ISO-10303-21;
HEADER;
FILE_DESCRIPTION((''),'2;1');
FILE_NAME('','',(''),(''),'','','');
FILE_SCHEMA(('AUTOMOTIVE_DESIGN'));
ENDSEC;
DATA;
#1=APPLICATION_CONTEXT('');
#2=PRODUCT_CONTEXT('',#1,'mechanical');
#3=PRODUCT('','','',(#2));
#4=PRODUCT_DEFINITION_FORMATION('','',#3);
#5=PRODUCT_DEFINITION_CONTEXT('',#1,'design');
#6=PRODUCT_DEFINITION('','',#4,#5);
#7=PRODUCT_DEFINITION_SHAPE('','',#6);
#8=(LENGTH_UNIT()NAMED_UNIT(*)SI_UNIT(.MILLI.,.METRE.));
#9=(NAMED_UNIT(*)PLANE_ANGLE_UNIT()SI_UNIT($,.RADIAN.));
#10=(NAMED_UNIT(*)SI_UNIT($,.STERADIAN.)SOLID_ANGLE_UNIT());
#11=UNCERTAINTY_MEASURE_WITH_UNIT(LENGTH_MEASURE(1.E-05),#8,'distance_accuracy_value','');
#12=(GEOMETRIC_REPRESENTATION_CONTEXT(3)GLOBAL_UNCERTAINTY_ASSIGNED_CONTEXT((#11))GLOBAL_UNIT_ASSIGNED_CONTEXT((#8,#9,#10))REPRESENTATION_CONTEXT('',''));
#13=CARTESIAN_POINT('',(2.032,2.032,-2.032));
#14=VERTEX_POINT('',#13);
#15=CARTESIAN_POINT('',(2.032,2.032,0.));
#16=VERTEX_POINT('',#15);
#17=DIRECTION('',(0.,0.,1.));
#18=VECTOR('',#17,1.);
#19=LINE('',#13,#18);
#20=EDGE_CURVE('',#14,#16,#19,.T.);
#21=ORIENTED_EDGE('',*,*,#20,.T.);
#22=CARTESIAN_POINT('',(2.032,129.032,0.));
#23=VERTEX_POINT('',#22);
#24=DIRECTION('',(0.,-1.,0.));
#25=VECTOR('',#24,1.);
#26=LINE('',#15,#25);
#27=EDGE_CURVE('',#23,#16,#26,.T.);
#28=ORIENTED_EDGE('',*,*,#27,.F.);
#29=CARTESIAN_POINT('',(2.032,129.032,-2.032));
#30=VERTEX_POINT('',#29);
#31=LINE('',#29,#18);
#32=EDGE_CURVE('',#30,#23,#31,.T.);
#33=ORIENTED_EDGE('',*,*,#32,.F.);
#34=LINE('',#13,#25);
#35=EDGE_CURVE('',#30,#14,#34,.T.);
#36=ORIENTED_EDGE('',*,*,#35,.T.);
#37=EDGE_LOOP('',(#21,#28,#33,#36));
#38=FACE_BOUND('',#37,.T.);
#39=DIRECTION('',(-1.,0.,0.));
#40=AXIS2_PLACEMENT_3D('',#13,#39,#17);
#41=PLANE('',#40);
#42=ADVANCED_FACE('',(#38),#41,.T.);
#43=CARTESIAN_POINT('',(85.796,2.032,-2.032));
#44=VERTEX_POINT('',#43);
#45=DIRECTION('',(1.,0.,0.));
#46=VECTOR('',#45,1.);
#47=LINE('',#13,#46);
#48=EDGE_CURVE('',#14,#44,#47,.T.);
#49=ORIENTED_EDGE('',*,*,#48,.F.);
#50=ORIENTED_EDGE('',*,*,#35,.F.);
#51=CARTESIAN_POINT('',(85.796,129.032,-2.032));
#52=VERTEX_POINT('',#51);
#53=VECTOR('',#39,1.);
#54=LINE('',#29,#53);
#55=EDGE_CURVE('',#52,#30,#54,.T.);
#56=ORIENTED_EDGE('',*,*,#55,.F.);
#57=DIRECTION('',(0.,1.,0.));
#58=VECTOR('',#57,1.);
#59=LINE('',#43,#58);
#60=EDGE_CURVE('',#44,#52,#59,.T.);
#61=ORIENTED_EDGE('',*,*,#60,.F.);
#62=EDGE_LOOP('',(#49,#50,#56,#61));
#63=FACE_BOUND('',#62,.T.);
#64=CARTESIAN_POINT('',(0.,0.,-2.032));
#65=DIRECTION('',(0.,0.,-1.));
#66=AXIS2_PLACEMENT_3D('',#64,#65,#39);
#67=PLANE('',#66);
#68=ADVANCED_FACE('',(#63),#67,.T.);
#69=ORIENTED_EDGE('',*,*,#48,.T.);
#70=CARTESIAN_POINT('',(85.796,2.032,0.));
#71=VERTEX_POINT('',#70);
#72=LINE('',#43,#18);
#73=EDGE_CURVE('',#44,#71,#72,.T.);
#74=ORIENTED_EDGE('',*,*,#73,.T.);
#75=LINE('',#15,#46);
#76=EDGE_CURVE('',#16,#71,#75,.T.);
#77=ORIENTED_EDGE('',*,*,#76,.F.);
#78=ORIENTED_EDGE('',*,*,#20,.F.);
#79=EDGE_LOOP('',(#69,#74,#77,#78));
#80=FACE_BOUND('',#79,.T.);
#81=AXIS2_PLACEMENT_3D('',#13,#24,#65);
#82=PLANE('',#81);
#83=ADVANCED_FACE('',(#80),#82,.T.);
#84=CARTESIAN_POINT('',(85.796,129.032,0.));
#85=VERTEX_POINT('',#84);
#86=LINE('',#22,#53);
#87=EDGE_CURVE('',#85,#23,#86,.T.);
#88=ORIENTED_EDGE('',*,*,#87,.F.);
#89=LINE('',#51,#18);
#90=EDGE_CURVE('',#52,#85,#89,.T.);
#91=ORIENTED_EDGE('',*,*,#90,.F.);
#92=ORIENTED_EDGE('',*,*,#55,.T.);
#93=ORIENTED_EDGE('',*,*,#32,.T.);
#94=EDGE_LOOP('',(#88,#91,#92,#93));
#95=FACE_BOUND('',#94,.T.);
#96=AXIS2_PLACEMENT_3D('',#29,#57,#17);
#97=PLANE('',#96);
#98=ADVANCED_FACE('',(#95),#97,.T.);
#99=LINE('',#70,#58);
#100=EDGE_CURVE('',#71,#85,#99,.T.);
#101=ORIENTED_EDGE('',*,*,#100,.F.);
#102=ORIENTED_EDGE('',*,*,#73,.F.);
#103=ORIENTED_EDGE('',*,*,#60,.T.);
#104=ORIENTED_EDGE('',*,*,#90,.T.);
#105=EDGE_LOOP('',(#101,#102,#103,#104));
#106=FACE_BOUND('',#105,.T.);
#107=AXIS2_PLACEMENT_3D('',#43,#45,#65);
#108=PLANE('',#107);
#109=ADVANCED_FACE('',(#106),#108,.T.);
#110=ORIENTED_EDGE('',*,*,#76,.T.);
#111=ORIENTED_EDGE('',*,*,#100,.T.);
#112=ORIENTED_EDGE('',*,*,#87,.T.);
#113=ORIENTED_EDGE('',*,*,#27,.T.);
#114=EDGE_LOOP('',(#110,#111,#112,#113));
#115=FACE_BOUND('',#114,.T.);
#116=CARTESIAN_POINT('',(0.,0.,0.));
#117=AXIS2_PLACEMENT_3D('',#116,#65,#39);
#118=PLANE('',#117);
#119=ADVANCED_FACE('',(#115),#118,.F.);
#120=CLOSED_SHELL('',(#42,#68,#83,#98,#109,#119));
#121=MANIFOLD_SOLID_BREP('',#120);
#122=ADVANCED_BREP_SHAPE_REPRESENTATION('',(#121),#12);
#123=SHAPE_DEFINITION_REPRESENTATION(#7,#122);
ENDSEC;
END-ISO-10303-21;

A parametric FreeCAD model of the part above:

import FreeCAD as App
import Part
import Sketcher

V = App.Vector
Q = App.Units.Quantity

doc = App.newDocument("Part")
body = doc.addObject("PartDesign::Body", "Body")

# Sketch on XY plane
sketch1 = doc.addObject("Sketcher::SketchObject", "Sketch")
body.addObject(sketch1)
sketch1.AttachmentSupport = (doc.XY_Plane, [""])
sketch1.MapMode = "FlatFace"
sketch1.addGeometry([
    Part.LineSegment(V(2.032, 129.032, 0), V(2.032, 2.032, 0)),
    Part.LineSegment(V(2.032, 2.032, 0), V(85.796, 2.032, 0)),
    Part.LineSegment(V(85.796, 2.032, 0), V(85.796, 129.032, 0)),
    Part.LineSegment(V(85.796, 129.032, 0), V(2.032, 129.032, 0)),
], False)
sketch1.addConstraint([
    Sketcher.Constraint("Coincident", 0, 2, 1, 1),
    Sketcher.Constraint("Coincident", 1, 2, 2, 1),
    Sketcher.Constraint("Coincident", 2, 2, 3, 1),
    Sketcher.Constraint("Coincident", 3, 2, 0, 1),
    Sketcher.Constraint("Vertical", 0),
    Sketcher.Constraint("Horizontal", 1),
    Sketcher.Constraint("Vertical", 2),
    Sketcher.Constraint("Horizontal", 3),
    Sketcher.Constraint("DistanceY", 0, 2, 0, 1, Q("5 in")),
    Sketcher.Constraint("DistanceX", -1, 1, 0, 2, Q("0.08 in")),
    Sketcher.Constraint("DistanceY", -1, 1, 0, 2, Q("0.08 in")),
    Sketcher.Constraint("DistanceX", 1, 1, 1, 2, 83.764),
])
pad1 = doc.addObject("PartDesign::Pad", "Pad")
body.addObject(pad1)
pad1.Profile = sketch1
pad1.Length = Q("0.08 in")
pad1.Reversed = True

doc.recompute()
